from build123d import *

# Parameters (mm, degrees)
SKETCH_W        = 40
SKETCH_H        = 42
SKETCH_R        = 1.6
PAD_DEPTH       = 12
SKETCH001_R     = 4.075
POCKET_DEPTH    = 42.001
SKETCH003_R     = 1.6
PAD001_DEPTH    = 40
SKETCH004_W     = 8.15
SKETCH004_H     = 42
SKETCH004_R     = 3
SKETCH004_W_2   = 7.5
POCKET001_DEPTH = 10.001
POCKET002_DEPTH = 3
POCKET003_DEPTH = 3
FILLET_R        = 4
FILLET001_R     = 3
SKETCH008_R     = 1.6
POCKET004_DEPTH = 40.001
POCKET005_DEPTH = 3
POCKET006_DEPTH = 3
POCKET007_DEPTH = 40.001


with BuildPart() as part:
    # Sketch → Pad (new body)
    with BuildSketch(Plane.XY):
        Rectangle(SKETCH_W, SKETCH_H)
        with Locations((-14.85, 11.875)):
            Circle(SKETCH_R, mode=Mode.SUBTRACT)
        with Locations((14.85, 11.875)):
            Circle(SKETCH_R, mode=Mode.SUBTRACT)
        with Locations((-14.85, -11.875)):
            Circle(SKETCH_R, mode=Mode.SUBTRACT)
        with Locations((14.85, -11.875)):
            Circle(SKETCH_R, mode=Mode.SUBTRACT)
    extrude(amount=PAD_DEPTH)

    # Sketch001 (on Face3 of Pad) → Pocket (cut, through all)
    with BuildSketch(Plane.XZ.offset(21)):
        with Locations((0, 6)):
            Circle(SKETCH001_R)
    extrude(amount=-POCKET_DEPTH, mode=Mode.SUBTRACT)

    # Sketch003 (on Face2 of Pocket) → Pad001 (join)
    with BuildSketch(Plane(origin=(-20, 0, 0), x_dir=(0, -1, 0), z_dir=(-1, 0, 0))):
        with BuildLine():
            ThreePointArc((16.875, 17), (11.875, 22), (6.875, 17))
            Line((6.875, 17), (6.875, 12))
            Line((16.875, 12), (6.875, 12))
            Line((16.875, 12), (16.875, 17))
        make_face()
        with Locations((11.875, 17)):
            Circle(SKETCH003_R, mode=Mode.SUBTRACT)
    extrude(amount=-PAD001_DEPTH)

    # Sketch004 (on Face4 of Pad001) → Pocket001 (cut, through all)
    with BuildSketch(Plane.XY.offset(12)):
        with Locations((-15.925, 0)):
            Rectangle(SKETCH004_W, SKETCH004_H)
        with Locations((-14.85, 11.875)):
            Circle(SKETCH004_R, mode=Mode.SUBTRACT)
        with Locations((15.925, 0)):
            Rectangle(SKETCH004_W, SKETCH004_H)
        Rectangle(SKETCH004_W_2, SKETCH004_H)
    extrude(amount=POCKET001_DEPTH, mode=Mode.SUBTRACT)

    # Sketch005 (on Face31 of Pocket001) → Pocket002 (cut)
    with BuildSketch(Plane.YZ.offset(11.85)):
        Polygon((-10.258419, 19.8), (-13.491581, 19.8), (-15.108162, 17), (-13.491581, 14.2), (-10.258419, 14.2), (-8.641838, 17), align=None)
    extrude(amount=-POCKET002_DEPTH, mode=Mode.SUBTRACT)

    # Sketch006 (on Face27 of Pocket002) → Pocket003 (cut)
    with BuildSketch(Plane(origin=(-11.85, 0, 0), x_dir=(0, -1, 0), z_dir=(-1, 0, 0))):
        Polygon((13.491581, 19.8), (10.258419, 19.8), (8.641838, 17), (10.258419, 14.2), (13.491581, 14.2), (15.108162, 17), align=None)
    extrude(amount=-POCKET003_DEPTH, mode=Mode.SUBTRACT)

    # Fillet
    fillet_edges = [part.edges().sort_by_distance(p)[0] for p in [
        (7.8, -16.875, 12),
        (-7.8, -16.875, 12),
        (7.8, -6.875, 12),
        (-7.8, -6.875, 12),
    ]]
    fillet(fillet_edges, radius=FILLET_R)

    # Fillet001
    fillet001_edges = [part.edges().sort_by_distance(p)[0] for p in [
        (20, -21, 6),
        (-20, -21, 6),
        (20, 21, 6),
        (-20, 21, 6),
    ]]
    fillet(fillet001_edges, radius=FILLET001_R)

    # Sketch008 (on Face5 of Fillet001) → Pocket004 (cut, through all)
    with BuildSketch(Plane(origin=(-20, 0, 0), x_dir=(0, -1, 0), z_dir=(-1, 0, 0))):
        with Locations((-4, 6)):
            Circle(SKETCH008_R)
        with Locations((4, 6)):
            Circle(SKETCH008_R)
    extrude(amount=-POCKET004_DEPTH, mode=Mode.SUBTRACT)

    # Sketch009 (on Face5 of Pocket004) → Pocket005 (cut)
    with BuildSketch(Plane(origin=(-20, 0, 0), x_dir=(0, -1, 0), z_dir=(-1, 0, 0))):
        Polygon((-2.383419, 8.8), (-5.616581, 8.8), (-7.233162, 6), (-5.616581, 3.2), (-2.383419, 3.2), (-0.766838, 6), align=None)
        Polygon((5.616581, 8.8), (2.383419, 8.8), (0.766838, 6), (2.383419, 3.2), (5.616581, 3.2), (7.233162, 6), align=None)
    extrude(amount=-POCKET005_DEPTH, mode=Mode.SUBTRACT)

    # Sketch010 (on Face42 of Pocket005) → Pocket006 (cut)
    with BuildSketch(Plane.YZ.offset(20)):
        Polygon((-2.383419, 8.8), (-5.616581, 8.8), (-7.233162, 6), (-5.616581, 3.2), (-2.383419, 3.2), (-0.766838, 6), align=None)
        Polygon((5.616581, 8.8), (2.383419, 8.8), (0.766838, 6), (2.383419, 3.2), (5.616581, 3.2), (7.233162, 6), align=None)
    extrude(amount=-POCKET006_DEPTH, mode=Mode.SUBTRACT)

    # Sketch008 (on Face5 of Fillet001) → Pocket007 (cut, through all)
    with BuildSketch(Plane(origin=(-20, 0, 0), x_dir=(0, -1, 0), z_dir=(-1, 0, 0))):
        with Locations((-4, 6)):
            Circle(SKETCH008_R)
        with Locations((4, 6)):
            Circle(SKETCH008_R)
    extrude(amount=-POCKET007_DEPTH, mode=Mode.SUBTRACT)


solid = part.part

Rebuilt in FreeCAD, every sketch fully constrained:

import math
import FreeCAD as App
import Part
import Sketcher

V = App.Vector
Q = App.Units.Quantity


def edges_at(feature, points):
    """Names of the edges that pass closest to the given points."""
    edges = feature.Shape.Edges
    near = lambda p: min(range(len(edges)), key=lambda i: edges[i].distToShape(Part.Vertex(*p))[0])
    return sorted({f"Edge{near(p) + 1}" for p in points})


def add_polygon(sketch, points):
    """Adds a closed chain of lines whose ends are joined by coincident constraints."""
    first, n = sketch.GeometryCount, len(points)
    for a, b in zip(points, points[1:] + points[:1]):
        sketch.addGeometry(Part.LineSegment(App.Vector(*a, 0), App.Vector(*b, 0)), False)
    for i in range(n):
        sketch.addConstraint(Sketcher.Constraint("Coincident", first + i, 2, first + (i + 1) % n, 1))

doc = App.newDocument("Part")
body = doc.addObject("PartDesign::Body", "Body")

sketch1 = doc.addObject("Sketcher::SketchObject", "Sketch")
body.addObject(sketch1)
sketch1.AttachmentSupport = (doc.XY_Plane, [""])
sketch1.MapMode = "FlatFace"
add_polygon(sketch1, [(-20, 21), (-20, -21), (20, -21), (20, 21)])
sketch1.addGeometry(Part.Circle(V(-14.85, -11.875, 0), V(0, 0, 1), 1.6), False)
sketch1.addGeometry(Part.Circle(V(14.85, -11.875, 0), V(0, 0, 1), 1.6), False)
sketch1.addGeometry(Part.Circle(V(-14.85, 11.875, 0), V(0, 0, 1), 1.6), False)
sketch1.addGeometry(Part.Circle(V(14.85, 11.875, 0), V(0, 0, 1), 1.6), False)
sketch1.addConstraint([
    Sketcher.Constraint("Vertical", 0),
    Sketcher.Constraint("Horizontal", 1),
    Sketcher.Constraint("Vertical", 2),
    Sketcher.Constraint("Horizontal", 3),
    Sketcher.Constraint("Equal", 4, 5),
    Sketcher.Constraint("Equal", 5, 6),
    Sketcher.Constraint("Equal", 6, 7),
    Sketcher.Constraint("Symmetric", 5, 3, 6, 3, -1, 1),
    Sketcher.Constraint("Symmetric", 4, 3, 7, 3, -1, 1),
    Sketcher.Constraint("Symmetric", 0, 2, 2, 2, -1, 1),
    Sketcher.Constraint("Symmetric", 4, 3, 5, 3, -2),
    Sketcher.Constraint("Diameter", 4, 3.2),
    Sketcher.Constraint("DistanceX", 1, 1, 1, 2, 40.0),
    Sketcher.Constraint("DistanceY", 0, 2, 0, 1, 42.0),
    Sketcher.Constraint("DistanceX", 4, 3, 5, 3, 29.7),
    Sketcher.Constraint("DistanceY", 4, 3, 6, 3, 23.75),
])
pad1 = doc.addObject("PartDesign::Pad", "Pad")
body.addObject(pad1)
pad1.Profile = sketch1
pad1.Length = 12

sketch2 = doc.addObject("Sketcher::SketchObject", "Sketch001")
body.addObject(sketch2)
sketch2.AttachmentSupport = (doc.XZ_Plane, [""])
sketch2.MapMode = "FlatFace"
sketch2.AttachmentOffset = App.Placement(V(0, 0, 21), App.Rotation())
sketch2.addGeometry(Part.Circle(V(0, 6, 0), V(0, 0, 1), 4.075), False)
sketch2.addConstraint([
    Sketcher.Constraint("PointOnObject", 0, 3, -2),
    Sketcher.Constraint("Diameter", 0, 8.15),
    Sketcher.Constraint("DistanceY", -1, 1, 0, 3, 6.0),
])
pocket1 = doc.addObject("PartDesign::Pocket", "Pocket")
body.addObject(pocket1)
pocket1.Profile = sketch2
pocket1.Type = "ThroughAll"

sketch3 = doc.addObject("Sketcher::SketchObject", "Sketch002")
body.addObject(sketch3)
sketch3.AttachmentSupport = (doc.YZ_Plane, [""])
sketch3.MapMode = "FlatFace"
sketch3.AttachmentOffset = App.Placement(V(0, 0, -20), App.Rotation())
sketch3.addGeometry([
    Part.ArcOfCircle(Part.Circle(V(-11.875, 17, 0), V(0, 0, 1), 5), math.radians(0), math.radians(180)),
    Part.LineSegment(V(-6.875, 17, 0), V(-6.875, 12, 0)),
    Part.LineSegment(V(-6.875, 12, 0), V(-16.875, 12, 0)),
    Part.LineSegment(V(-16.875, 12, 0), V(-16.875, 17, 0)),
    Part.Circle(V(-11.875, 17, 0), V(0, 0, 1), 1.6),
], False)
sketch3.addConstraint([
    Sketcher.Constraint("Tangent", 0, 1, 1, 1),
    Sketcher.Constraint("Coincident", 1, 2, 2, 1),
    Sketcher.Constraint("Coincident", 2, 2, 3, 1),
    Sketcher.Constraint("Tangent", 3, 2, 0, 2),
    Sketcher.Constraint("Vertical", 1),
    Sketcher.Constraint("Horizontal", 2),
    Sketcher.Constraint("Vertical", 3),
    Sketcher.Constraint("Coincident", 4, 3, 0, 3),
    Sketcher.Constraint("Radius", 0, 5.0),
    Sketcher.Constraint("Diameter", 4, 3.2),
    Sketcher.Constraint("DistanceY", 1, 2, 1, 1, 5.0),
    Sketcher.Constraint("DistanceY", -1, 1, 0, 3, 17.0),
    Sketcher.Constraint("DistanceX", 0, 3, -1, 1, 11.875),
])
pad2 = doc.addObject("PartDesign::Pad", "Pad001")
body.addObject(pad2)
pad2.Profile = sketch3
pad2.Length = 40

sketch4 = doc.addObject("Sketcher::SketchObject", "Sketch003")
body.addObject(sketch4)
sketch4.AttachmentSupport = (doc.XY_Plane, [""])
sketch4.MapMode = "FlatFace"
sketch4.AttachmentOffset = App.Placement(V(0, 0, 12), App.Rotation())
add_polygon(sketch4, [(-20, 21), (-20, -21), (-11.85, -21), (-11.85, 11.875), (-11.85, 21)])
sketch4.addGeometry(Part.Circle(V(-14.85, 11.875, 0), V(0, 0, 1), 3), False)
add_polygon(sketch4, [(11.85, 21), (11.85, -21), (20, -21), (20, 21)])
add_polygon(sketch4, [(-3.75, 21), (-3.75, -21), (3.75, -21), (3.75, 21)])
sketch4.addConstraint([
    Sketcher.Constraint("Vertical", 0),
    Sketcher.Constraint("Horizontal", 1),
    Sketcher.Constraint("Vertical", 2),
    Sketcher.Constraint("Vertical", 3),
    Sketcher.Constraint("Horizontal", 4),
    Sketcher.Constraint("Vertical", 6),
    Sketcher.Constraint("Horizontal", 7),
    Sketcher.Constraint("Vertical", 8),
    Sketcher.Constraint("Horizontal", 9),
    Sketcher.Constraint("Vertical", 10),
    Sketcher.Constraint("Horizontal", 11),
    Sketcher.Constraint("Vertical", 12),
    Sketcher.Constraint("Horizontal", 13),
    Sketcher.Constraint("Symmetric", 3, 2, 6, 2, -1, 1),
    Sketcher.Constraint("Symmetric", 0, 2, 8, 2, -1, 1),
    Sketcher.Constraint("Symmetric", 10, 2, 12, 2, -1, 1),
    Sketcher.Constraint("Horizontal", 5, 3, 2, 2),
    Sketcher.Constraint("Horizontal", 1, 2, 6, 2),
    Sketcher.Constraint("Horizontal", 7, 2, 10, 2),
    Sketcher.Constraint("Diameter", 5, 6.0),
    Sketcher.Constraint("DistanceY", 0, 2, 0, 1, 42.0),
    Sketcher.Constraint("DistanceX", 11, 1, 11, 2, 7.5),
    Sketcher.Constraint("DistanceX", 0, 2, -1, 1, 20.0),
    Sketcher.Constraint("DistanceX", 5, 3, 1, 2, 3.0),
    Sketcher.Constraint("DistanceX", 1, 1, 1, 2, 8.15),
    Sketcher.Constraint("DistanceY", 2, 1, 2, 2, 32.875),
])
pocket2 = doc.addObject("PartDesign::Pocket", "Pocket001")
body.addObject(pocket2)
pocket2.Profile = sketch4
pocket2.Type = "ThroughAll"
pocket2.Reversed = True

sketch5 = doc.addObject("Sketcher::SketchObject", "Sketch004")
body.addObject(sketch5)
sketch5.AttachmentSupport = (doc.YZ_Plane, [""])
sketch5.MapMode = "FlatFace"
sketch5.AttachmentOffset = App.Placement(V(0, 0, 11.85), App.Rotation())
add_polygon(sketch5, [(-10.258419, 19.8), (-13.491581, 19.8), (-15.108162, 17), (-13.491581, 14.2), (-10.258419, 14.2), (-8.641838, 17)])
sketch5.addConstraint([
    Sketcher.Constraint("Horizontal", 0),
    Sketcher.Constraint("Horizontal", 3),
    Sketcher.Constraint("Parallel", 1, 4),
    Sketcher.Constraint("Parallel", 2, 5),
    Sketcher.Constraint("Horizontal", 1, 2, 4, 2),
    Sketcher.Constraint("Vertical", 0, 2, 2, 2),
    Sketcher.Constraint("Vertical", 3, 2, 5, 2),
    Sketcher.Constraint("Angle", 1, Q("-120.000004 deg")),
    Sketcher.Constraint("DistanceY", -1, 1, 1, 2, 17.0),
    Sketcher.Constraint("DistanceY", -1, 1, 0, 2, 19.8),
    Sketcher.Constraint("DistanceX", 0, 2, 0, 1, 3.233162),
    Sketcher.Constraint("DistanceX", 0, 2, -1, 1, 13.491581),
])
pocket3 = doc.addObject("PartDesign::Pocket", "Pocket002")
body.addObject(pocket3)
pocket3.Profile = sketch5
pocket3.Length = 3

sketch6 = doc.addObject("Sketcher::SketchObject", "Sketch005")
body.addObject(sketch6)
sketch6.AttachmentSupport = (doc.YZ_Plane, [""])
sketch6.MapMode = "FlatFace"
sketch6.AttachmentOffset = App.Placement(V(0, 0, -11.85), App.Rotation())
add_polygon(sketch6, [(-13.491581, 19.8), (-10.258419, 19.8), (-8.641838, 17), (-10.258419, 14.2), (-13.491581, 14.2), (-15.108162, 17)])
sketch6.addConstraint([
    Sketcher.Constraint("Horizontal", 0),
    Sketcher.Constraint("Horizontal", 3),
    Sketcher.Constraint("Parallel", 1, 4),
    Sketcher.Constraint("Parallel", 2, 5),
    Sketcher.Constraint("Horizontal", 1, 2, 4, 2),
    Sketcher.Constraint("Vertical", 0, 2, 2, 2),
    Sketcher.Constraint("Vertical", 3, 2, 5, 2),
    Sketcher.Constraint("Angle", 1, Q("-59.999996 deg")),
    Sketcher.Constraint("DistanceY", -1, 1, 1, 2, 17.0),
    Sketcher.Constraint("DistanceY", -1, 1, 0, 2, 19.8),
    Sketcher.Constraint("DistanceX", 0, 1, 0, 2, 3.233162),
    Sketcher.Constraint("DistanceX", 0, 2, -1, 1, 10.258419),
])
pocket4 = doc.addObject("PartDesign::Pocket", "Pocket003")
body.addObject(pocket4)
pocket4.Profile = sketch6
pocket4.Length = 3
pocket4.Reversed = True
doc.recompute()

fillet = doc.addObject("PartDesign::Fillet", "Fillet")
body.addObject(fillet)
fillet.Base = (pocket4, edges_at(pocket4, [
    (7.8, -16.875, 12),
    (-7.8, -16.875, 12),
    (7.8, -6.875, 12),
    (-7.8, -6.875, 12),
]))
fillet.Radius = 4
doc.recompute()

fillet2 = doc.addObject("PartDesign::Fillet", "Fillet001")
body.addObject(fillet2)
fillet2.Base = (fillet, edges_at(fillet, [
    (20, -21, 6),
    (-20, -21, 6),
    (20, 21, 6),
    (-20, 21, 6),
]))
fillet2.Radius = 3

sketch7 = doc.addObject("Sketcher::SketchObject", "Sketch006")
body.addObject(sketch7)
sketch7.AttachmentSupport = (doc.YZ_Plane, [""])
sketch7.MapMode = "FlatFace"
sketch7.AttachmentOffset = App.Placement(V(0, 0, -20), App.Rotation())
sketch7.addGeometry([
    Part.Circle(V(4, 6, 0), V(0, 0, 1), 1.6),
    Part.Circle(V(-4, 6, 0), V(0, 0, 1), 1.6),
], False)
sketch7.addConstraint([
    Sketcher.Constraint("Equal", 0, 1),
    Sketcher.Constraint("Symmetric", 0, 3, 1, 3, -2),
    Sketcher.Constraint("Diameter", 0, 3.2),
    Sketcher.Constraint("DistanceX", -1, 1, 0, 3, 4.0),
    Sketcher.Constraint("DistanceY", -1, 1, 0, 3, 6.0),
])
pocket5 = doc.addObject("PartDesign::Pocket", "Pocket004")
body.addObject(pocket5)
pocket5.Profile = sketch7
pocket5.Type = "ThroughAll"
pocket5.Reversed = True

sketch8 = doc.addObject("Sketcher::SketchObject", "Sketch007")
body.addObject(sketch8)
sketch8.AttachmentSupport = (doc.YZ_Plane, [""])
sketch8.MapMode = "FlatFace"
sketch8.AttachmentOffset = App.Placement(V(0, 0, -20), App.Rotation())
add_polygon(sketch8, [(2.383419, 8.8), (5.616581, 8.8), (7.233162, 6), (5.616581, 3.2), (2.383419, 3.2), (0.766838, 6)])
add_polygon(sketch8, [(-5.616581, 8.8), (-2.383419, 8.8), (-0.766838, 6), (-2.383419, 3.2), (-5.616581, 3.2), (-7.233162, 6)])
sketch8.addConstraint([
    Sketcher.Constraint("Horizontal", 0),
    Sketcher.Constraint("Horizontal", 3),
    Sketcher.Constraint("Horizontal", 6),
    Sketcher.Constraint("Horizontal", 9),
    Sketcher.Constraint("Symmetric", 5, 2, 6, 2, -2),
    Sketcher.Constraint("Symmetric", 4, 2, 7, 2, -2),
    Sketcher.Constraint("Symmetric", 3, 2, 8, 2, -2),
    Sketcher.Constraint("Symmetric", 1, 2, 10, 2, -2),
    Sketcher.Constraint("Parallel", 1, 4),
    Sketcher.Constraint("Parallel", 2, 5),
    Sketcher.Constraint("Parallel", 4, 7),
    Sketcher.Constraint("Parallel", 7, 10),
    Sketcher.Constraint("Parallel", 8, 11),
    Sketcher.Constraint("Horizontal", 1, 2, 4, 2),
    Sketcher.Constraint("Vertical", 0, 2, 2, 2),
    Sketcher.Constraint("Angle", 1, Q("-59.999996 deg")),
    Sketcher.Constraint("DistanceY", -1, 1, 1, 2, 6.0),
    Sketcher.Constraint("DistanceX", 6, 2, 0, 2, 8.0),
    Sketcher.Constraint("DistanceY", -1, 1, 0, 2, 8.8),
    Sketcher.Constraint("DistanceX", 0, 1, 0, 2, 3.233162),
])
pocket6 = doc.addObject("PartDesign::Pocket", "Pocket005")
body.addObject(pocket6)
pocket6.Profile = sketch8
pocket6.Length = 3
pocket6.Reversed = True

sketch9 = doc.addObject("Sketcher::SketchObject", "Sketch008")
body.addObject(sketch9)
sketch9.AttachmentSupport = (doc.YZ_Plane, [""])
sketch9.MapMode = "FlatFace"
sketch9.AttachmentOffset = App.Placement(V(0, 0, 20), App.Rotation())
add_polygon(sketch9, [(-2.383419, 8.8), (-5.616581, 8.8), (-7.233162, 6), (-5.616581, 3.2), (-2.383419, 3.2), (-0.766838, 6)])
add_polygon(sketch9, [(5.616581, 8.8), (2.383419, 8.8), (0.766838, 6), (2.383419, 3.2), (5.616581, 3.2), (7.233162, 6)])
sketch9.addConstraint([
    Sketcher.Constraint("Horizontal", 0),
    Sketcher.Constraint("Horizontal", 3),
    Sketcher.Constraint("Horizontal", 6),
    Sketcher.Constraint("Horizontal", 9),
    Sketcher.Constraint("Symmetric", 5, 2, 6, 2, -2),
    Sketcher.Constraint("Symmetric", 4, 2, 7, 2, -2),
    Sketcher.Constraint("Symmetric", 3, 2, 8, 2, -2),
    Sketcher.Constraint("Symmetric", 1, 2, 10, 2, -2),
    Sketcher.Constraint("Parallel", 1, 4),
    Sketcher.Constraint("Parallel", 2, 5),
    Sketcher.Constraint("Parallel", 4, 7),
    Sketcher.Constraint("Parallel", 7, 10),
    Sketcher.Constraint("Parallel", 8, 11),
    Sketcher.Constraint("Horizontal", 1, 2, 4, 2),
    Sketcher.Constraint("Vertical", 0, 2, 2, 2),
    Sketcher.Constraint("Angle", 1, Q("-120.000004 deg")),
    Sketcher.Constraint("DistanceY", -1, 1, 1, 2, 6.0),
    Sketcher.Constraint("DistanceX", 0, 2, 6, 2, 8.0),
    Sketcher.Constraint("DistanceY", -1, 1, 0, 2, 8.8),
    Sketcher.Constraint("DistanceX", 0, 2, 0, 1, 3.233162),
])
pocket7 = doc.addObject("PartDesign::Pocket", "Pocket006")
body.addObject(pocket7)
pocket7.Profile = sketch9
pocket7.Length = 3

sketch10 = doc.addObject("Sketcher::SketchObject", "Sketch009")
body.addObject(sketch10)
sketch10.AttachmentSupport = (doc.YZ_Plane, [""])
sketch10.MapMode = "FlatFace"
sketch10.AttachmentOffset = App.Placement(V(0, 0, -20), App.Rotation())
sketch10.addGeometry([
    Part.Circle(V(4, 6, 0), V(0, 0, 1), 1.6),
    Part.Circle(V(-4, 6, 0), V(0, 0, 1), 1.6),
], False)
sketch10.addConstraint([
    Sketcher.Constraint("Equal", 0, 1),
    Sketcher.Constraint("Symmetric", 0, 3, 1, 3, -2),
    Sketcher.Constraint("Diameter", 0, 3.2),
    Sketcher.Constraint("DistanceX", -1, 1, 0, 3, 4.0),
    Sketcher.Constraint("DistanceY", -1, 1, 0, 3, 6.0),
])
pocket8 = doc.addObject("PartDesign::Pocket", "Pocket007")
body.addObject(pocket8)
pocket8.Profile = sketch10
pocket8.Type = "ThroughAll"
pocket8.Reversed = True

doc.recompute()
